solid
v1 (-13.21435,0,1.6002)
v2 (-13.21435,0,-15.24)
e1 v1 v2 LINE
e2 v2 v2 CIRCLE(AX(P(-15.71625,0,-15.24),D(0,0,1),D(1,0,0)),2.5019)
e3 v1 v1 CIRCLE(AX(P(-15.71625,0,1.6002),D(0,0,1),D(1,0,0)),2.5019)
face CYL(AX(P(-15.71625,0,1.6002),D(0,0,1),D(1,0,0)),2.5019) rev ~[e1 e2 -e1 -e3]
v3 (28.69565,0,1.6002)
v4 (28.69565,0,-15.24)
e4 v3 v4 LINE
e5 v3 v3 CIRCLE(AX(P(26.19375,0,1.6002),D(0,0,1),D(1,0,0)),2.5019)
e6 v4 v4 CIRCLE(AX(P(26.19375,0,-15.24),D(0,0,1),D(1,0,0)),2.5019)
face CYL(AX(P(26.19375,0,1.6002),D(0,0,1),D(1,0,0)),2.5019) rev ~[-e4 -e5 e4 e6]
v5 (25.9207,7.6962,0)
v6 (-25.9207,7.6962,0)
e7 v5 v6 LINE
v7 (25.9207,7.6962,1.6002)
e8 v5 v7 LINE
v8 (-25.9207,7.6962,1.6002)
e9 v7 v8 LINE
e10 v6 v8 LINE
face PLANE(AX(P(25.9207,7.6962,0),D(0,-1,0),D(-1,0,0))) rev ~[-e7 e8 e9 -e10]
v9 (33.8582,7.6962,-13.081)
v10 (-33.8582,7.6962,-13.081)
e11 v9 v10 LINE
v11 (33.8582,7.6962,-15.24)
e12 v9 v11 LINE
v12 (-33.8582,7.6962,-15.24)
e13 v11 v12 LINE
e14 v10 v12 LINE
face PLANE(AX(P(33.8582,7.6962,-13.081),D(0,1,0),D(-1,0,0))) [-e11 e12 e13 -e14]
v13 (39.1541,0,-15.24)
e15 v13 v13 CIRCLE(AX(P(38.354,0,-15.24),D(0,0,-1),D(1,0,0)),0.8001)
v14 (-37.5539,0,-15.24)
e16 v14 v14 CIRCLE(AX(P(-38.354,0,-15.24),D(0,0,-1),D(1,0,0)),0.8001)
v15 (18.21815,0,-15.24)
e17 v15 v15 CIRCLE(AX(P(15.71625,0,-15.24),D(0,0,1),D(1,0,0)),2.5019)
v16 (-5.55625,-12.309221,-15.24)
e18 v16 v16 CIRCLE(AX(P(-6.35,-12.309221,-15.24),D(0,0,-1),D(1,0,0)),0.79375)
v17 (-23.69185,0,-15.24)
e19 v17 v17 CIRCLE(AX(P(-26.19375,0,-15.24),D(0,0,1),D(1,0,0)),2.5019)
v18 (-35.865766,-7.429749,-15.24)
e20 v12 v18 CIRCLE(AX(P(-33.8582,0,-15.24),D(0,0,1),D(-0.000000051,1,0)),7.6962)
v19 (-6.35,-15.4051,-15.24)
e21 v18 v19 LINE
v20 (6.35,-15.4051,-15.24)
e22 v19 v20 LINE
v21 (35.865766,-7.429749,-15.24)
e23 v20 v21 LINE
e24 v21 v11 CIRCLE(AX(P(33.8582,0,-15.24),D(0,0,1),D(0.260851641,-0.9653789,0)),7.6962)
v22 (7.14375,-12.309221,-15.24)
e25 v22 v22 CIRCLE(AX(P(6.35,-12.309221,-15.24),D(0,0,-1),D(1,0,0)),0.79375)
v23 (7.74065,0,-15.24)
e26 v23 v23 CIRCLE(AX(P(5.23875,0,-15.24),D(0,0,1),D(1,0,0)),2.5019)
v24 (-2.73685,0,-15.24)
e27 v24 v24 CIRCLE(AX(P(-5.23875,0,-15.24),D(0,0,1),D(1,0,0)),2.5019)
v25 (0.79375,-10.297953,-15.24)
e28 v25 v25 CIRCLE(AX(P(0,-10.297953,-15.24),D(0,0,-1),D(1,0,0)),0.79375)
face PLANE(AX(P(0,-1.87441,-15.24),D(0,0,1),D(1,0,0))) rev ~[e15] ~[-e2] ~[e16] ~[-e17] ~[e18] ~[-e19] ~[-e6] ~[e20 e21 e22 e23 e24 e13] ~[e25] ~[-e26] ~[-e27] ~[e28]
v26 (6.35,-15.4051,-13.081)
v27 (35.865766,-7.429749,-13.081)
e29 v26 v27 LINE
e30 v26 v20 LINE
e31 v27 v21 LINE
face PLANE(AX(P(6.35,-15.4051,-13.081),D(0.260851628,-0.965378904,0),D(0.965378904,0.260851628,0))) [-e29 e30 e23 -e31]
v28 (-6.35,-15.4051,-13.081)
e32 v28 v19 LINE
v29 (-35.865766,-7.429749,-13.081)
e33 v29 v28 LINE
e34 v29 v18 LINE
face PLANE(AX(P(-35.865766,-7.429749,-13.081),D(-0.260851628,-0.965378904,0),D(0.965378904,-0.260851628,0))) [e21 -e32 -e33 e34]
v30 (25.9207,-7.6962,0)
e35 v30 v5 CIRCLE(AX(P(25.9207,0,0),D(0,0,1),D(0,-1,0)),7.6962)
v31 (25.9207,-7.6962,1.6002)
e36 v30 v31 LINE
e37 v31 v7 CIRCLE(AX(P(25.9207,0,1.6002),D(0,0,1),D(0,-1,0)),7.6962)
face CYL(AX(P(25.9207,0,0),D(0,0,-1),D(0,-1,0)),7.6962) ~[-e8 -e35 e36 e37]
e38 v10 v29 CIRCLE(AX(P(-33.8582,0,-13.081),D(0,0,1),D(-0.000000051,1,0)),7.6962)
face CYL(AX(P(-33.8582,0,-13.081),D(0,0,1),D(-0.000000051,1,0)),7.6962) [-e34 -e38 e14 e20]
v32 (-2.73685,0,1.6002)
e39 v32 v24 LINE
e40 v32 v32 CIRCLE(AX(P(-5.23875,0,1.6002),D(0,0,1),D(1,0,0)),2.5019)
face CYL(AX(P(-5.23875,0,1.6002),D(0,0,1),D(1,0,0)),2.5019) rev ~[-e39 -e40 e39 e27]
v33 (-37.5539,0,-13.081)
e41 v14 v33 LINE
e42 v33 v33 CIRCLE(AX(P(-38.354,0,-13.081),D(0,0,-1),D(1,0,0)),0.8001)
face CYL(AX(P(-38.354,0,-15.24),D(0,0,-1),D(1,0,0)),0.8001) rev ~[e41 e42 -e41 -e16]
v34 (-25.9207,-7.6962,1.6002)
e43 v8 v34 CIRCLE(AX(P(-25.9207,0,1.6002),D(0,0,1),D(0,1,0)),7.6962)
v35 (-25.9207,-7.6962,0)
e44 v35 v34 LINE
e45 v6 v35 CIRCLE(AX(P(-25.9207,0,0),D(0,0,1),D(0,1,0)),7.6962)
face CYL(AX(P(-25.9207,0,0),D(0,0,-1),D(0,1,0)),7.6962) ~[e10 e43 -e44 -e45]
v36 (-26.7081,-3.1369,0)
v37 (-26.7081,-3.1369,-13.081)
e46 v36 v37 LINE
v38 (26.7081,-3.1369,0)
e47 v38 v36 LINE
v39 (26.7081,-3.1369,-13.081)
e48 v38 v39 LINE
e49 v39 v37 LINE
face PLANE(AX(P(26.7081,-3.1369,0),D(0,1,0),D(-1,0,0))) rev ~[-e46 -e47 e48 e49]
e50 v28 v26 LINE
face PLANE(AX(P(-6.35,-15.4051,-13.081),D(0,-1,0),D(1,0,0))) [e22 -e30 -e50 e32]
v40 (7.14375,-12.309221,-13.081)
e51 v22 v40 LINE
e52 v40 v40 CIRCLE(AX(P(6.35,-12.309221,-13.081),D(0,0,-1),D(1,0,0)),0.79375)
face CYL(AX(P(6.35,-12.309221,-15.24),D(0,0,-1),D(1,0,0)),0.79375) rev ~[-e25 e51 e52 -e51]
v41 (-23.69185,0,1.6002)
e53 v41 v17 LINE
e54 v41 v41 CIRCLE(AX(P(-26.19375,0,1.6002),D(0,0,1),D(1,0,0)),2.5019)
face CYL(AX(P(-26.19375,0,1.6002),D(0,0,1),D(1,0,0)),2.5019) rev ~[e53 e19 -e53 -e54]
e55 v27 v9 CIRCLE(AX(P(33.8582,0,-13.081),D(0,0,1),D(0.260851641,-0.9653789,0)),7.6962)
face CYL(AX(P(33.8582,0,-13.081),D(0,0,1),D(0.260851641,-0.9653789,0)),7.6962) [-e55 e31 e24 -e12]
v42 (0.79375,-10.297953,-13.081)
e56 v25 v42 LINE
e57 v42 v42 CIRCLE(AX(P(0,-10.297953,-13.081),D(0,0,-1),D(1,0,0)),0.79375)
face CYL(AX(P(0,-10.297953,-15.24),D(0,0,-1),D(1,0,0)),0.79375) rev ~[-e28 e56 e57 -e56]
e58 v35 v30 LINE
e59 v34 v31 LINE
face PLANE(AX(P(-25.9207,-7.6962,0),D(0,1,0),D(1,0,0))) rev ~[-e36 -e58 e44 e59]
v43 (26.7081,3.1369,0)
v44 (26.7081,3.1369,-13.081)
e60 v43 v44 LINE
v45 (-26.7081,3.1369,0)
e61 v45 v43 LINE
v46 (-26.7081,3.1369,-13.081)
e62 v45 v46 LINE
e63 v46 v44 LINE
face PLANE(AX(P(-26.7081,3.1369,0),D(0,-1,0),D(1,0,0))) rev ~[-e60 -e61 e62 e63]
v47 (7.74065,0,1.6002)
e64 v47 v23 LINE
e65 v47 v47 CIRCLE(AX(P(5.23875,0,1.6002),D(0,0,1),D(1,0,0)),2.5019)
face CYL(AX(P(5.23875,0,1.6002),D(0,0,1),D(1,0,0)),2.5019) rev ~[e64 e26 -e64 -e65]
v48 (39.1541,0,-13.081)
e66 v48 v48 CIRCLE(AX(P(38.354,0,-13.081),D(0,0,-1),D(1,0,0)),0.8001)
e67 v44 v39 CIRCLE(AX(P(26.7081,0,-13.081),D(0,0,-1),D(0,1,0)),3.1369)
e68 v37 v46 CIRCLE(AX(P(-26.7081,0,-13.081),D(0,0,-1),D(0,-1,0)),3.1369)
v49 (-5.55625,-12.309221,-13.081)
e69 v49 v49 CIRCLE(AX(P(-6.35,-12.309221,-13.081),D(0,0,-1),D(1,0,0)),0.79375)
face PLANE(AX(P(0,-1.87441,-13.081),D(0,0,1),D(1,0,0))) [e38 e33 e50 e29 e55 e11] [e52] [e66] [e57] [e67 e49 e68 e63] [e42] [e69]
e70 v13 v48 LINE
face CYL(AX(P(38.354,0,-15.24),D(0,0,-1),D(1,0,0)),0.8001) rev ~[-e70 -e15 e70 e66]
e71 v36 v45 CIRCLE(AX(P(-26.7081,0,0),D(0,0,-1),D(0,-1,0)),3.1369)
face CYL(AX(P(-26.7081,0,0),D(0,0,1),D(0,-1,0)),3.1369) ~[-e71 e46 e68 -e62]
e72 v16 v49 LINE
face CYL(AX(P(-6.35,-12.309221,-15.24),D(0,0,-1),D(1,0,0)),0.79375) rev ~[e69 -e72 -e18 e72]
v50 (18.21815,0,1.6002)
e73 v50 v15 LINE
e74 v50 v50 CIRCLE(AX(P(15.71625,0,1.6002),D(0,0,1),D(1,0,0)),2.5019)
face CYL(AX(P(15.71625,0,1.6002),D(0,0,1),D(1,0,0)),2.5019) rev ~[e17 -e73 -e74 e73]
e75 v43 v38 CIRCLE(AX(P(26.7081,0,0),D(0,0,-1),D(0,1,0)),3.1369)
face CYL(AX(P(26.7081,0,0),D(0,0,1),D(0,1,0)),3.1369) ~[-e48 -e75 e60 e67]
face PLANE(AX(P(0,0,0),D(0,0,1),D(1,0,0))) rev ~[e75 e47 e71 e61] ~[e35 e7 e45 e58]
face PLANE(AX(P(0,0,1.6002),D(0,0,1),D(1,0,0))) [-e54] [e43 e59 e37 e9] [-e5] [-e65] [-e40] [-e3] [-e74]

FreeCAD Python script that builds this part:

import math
import FreeCAD as App
import Part
import Sketcher

V = App.Vector
Q = App.Units.Quantity

doc = App.newDocument("Part")
body = doc.addObject("PartDesign::Body", "Body")

# Sketch on XY plane
sketch1 = body.newObject("Sketcher::SketchObject", "Sketch")
sketch1.AttachmentSupport = (doc.getObject("XY_Plane"), [""])
sketch1.MapMode = "FlatFace"
sketch1.addGeometry(Part.ArcOfCircle(Part.Circle(V(-26, 0, 0), V(0, 0, 1), 8), math.radians(90), math.radians(270)), False)
sketch1.addGeometry(Part.LineSegment(V(-26, -8, 0), V(26, -8, 0)), False)
sketch1.addGeometry(Part.ArcOfCircle(Part.Circle(V(26, 0, 0), V(0, 0, 1), 8), math.radians(-90), math.radians(90)), False)
sketch1.addGeometry(Part.LineSegment(V(26, 8, 0), V(-26, 8, 0)), False)
sketch1.addConstraint(Sketcher.Constraint("Tangent", 0, 2, 1, 1))
sketch1.addConstraint(Sketcher.Constraint("Tangent", 1, 2, 2, 1))
sketch1.addConstraint(Sketcher.Constraint("Tangent", 2, 2, 3, 1))
sketch1.addConstraint(Sketcher.Constraint("Tangent", 3, 2, 0, 1))
sketch1.addConstraint(Sketcher.Constraint("Horizontal", 1))
sketch1.addConstraint(Sketcher.Constraint("Horizontal", 3))
sketch1.addConstraint(Sketcher.Constraint("Symmetric", 0, 3, 2, 3, -1, 1))
sketch1.addConstraint(Sketcher.Constraint("Radius", 0, Q("0.303 in")))
sketch1.addConstraint(Sketcher.Constraint("DistanceX", 1, 1, 1, 2, Q("2.041 in")))
pad1 = body.newObject("PartDesign::Pad", "Pad")
pad1.Profile = sketch1
pad1.Length = Q("0.063 in")
body2 = doc.addObject("PartDesign::Body", "Body001")

# Sketch on XY plane
sketch2 = body2.newObject("Sketcher::SketchObject", "Sketch001")
sketch2.AttachmentSupport = (doc.getObject("XY_Plane001"), [""])
sketch2.MapMode = "FlatFace"
sketch2.AttachmentOffset = App.Placement(V(0, 0, -0.515 * 25.4), App.Rotation())
sketch2.addGeometry(Part.LineSegment(V(-36, -7, 0), V(-6, -15, 0)), False)
sketch2.addGeometry(Part.LineSegment(V(-6, -15, 0), V(6, -15, 0)), False)
sketch2.addGeometry(Part.LineSegment(V(6, -15, 0), V(36, -7, 0)), False)
sketch2.addGeometry(Part.ArcOfCircle(Part.Circle(V(34, 0, 0), V(0, 0, 1), 8), math.radians(-75), math.radians(90)), False)
sketch2.addGeometry(Part.LineSegment(V(34, 8, 0), V(-34, 8, 0)), False)
sketch2.addGeometry(Part.ArcOfCircle(Part.Circle(V(-34, 0, 0), V(0, 0, 1), 8), math.radians(90), math.radians(255)), False)
sketch2.addConstraint(Sketcher.Constraint("Coincident", 0, 2, 1, 1))
sketch2.addConstraint(Sketcher.Constraint("Coincident", 1, 2, 2, 1))
sketch2.addConstraint(Sketcher.Constraint("Tangent", 2, 2, 3, 1))
sketch2.addConstraint(Sketcher.Constraint("Tangent", 3, 2, 4, 1))
sketch2.addConstraint(Sketcher.Constraint("Tangent", 4, 2, 5, 1))
sketch2.addConstraint(Sketcher.Constraint("Tangent", 5, 2, 0, 1))
sketch2.addConstraint(Sketcher.Constraint("Horizontal", 1))
sketch2.addConstraint(Sketcher.Constraint("Horizontal", 4))
sketch2.addConstraint(Sketcher.Constraint("Equal", 3, 5))
sketch2.addConstraint(Sketcher.Constraint("Symmetric", 3, 3, 5, 3, -1, 1))
sketch2.addConstraint(Sketcher.Constraint("Horizontal", 2, 2, 5, 2))
sketch2.addConstraint(Sketcher.Constraint("DistanceX", 1, 1, 1, 2, Q("0.5 in")))
sketch2.addConstraint(Sketcher.Constraint("Radius", 3, Q("0.303 in")))
sketch2.addConstraint(Sketcher.Constraint("DistanceX", 4, 2, 4, 1, Q("2.666 in")))
sketch2.addConstraint(Sketcher.Constraint("DistanceY", 0, 2, -1, 1, Q("0.6065 in")))
pad2 = body2.newObject("PartDesign::Pad", "Pad001")
pad2.Profile = sketch2
pad2.Length = Q("0.085 in")
pad2.Reversed = True
body.AllowCompound = True
doc.recompute()

boolean = body.newObject("PartDesign::Boolean", "Boolean")
boolean.Type = "Fuse"
boolean.addObjects([body2])

# Sketch on XY plane
sketch3 = body.newObject("Sketcher::SketchObject", "Sketch002")
sketch3.AttachmentSupport = (doc.getObject("XY_Plane"), [""])
sketch3.MapMode = "FlatFace"
sketch3.addGeometry(Part.ArcOfCircle(Part.Circle(V(26.7, 0, 0), V(0, 0, 1), 3.1), math.radians(-90), math.radians(90)), False)
sketch3.addGeometry(Part.LineSegment(V(26.7, -3.1, 0), V(-26.7, -3.1, 0)), False)
sketch3.addGeometry(Part.ArcOfCircle(Part.Circle(V(-26.7, 0, 0), V(0, 0, 1), 3.1), math.radians(90), math.radians(270)), False)
sketch3.addGeometry(Part.LineSegment(V(-26.7, 3.1, 0), V(26.7, 3.1, 0)), False)
sketch3.addConstraint(Sketcher.Constraint("Tangent", 0, 1, 1, 1))
sketch3.addConstraint(Sketcher.Constraint("Tangent", 1, 2, 2, 2))
sketch3.addConstraint(Sketcher.Constraint("Tangent", 2, 1, 3, 1))
sketch3.addConstraint(Sketcher.Constraint("Tangent", 3, 2, 0, 2))
sketch3.addConstraint(Sketcher.Constraint("Horizontal", 1))
sketch3.addConstraint(Sketcher.Constraint("Horizontal", 3))
sketch3.addConstraint(Sketcher.Constraint("Symmetric", 0, 3, 2, 3, -1, 1))
sketch3.addConstraint(Sketcher.Constraint("Radius", 0, Q("0.1235 in")))
sketch3.addConstraint(Sketcher.Constraint("DistanceX", 1, 2, 1, 1, Q("2.103 in")))
pad3 = body.newObject("PartDesign::Pad", "Pad002")
pad3.Profile = sketch3
pad3.Type = "UpToLast"
pad3.Reversed = True

# Sketch on XY plane
sketch4 = body.newObject("Sketcher::SketchObject", "Sketch003")
sketch4.AttachmentSupport = (doc.getObject("XY_Plane"), [""])
sketch4.MapMode = "FlatFace"
sketch4.AttachmentOffset = App.Placement(V(0, 0, 0.063 * 25.4), App.Rotation())
sketch4.addGeometry(Part.Circle(V(-5.2, 0, 0), V(0, 0, 1), 2.5), False)
sketch4.addGeometry(Part.Circle(V(-15.7, 0, 0), V(0, 0, 1), 2.5), False)
sketch4.addGeometry(Part.Circle(V(-26.2, 0, 0), V(0, 0, 1), 2.5), False)
sketch4.addGeometry(Part.Circle(V(5.2, 0, 0), V(0, 0, 1), 2.5), False)
sketch4.addGeometry(Part.Circle(V(15.7, 0, 0), V(0, 0, 1), 2.5), False)
sketch4.addGeometry(Part.Circle(V(26.2, 0, 0), V(0, 0, 1), 2.5), False)
sketch4.addConstraint(Sketcher.Constraint("Equal", 0, 1))
sketch4.addConstraint(Sketcher.Constraint("Equal", 1, 2))
sketch4.addConstraint(Sketcher.Constraint("Equal", 2, 3))
sketch4.addConstraint(Sketcher.Constraint("Equal", 3, 4))
sketch4.addConstraint(Sketcher.Constraint("Equal", 4, 5))
sketch4.addConstraint(Sketcher.Constraint("Symmetric", 0, 3, 3, 3, -1, 1))
sketch4.addConstraint(Sketcher.Constraint("Symmetric", 1, 3, 4, 3, -1, 1))
sketch4.addConstraint(Sketcher.Constraint("Symmetric", 2, 3, 5, 3, -1, 1))
sketch4.addConstraint(Sketcher.Constraint("PointOnObject", 0, 3, -1))
sketch4.addConstraint(Sketcher.Constraint("PointOnObject", 1, 3, -1))
sketch4.addConstraint(Sketcher.Constraint("PointOnObject", 2, 3, -1))
sketch4.addConstraint(Sketcher.Constraint("Diameter", 0, Q("0.197 in")))
sketch4.addConstraint(Sketcher.Constraint("DistanceX", 2, 3, 4, 3, Q("1.65 in")))
sketch4.addConstraint(Sketcher.Constraint("DistanceX", 2, 3, -1, 1, Q("1.03125 in")))
sketch4.addConstraint(Sketcher.Constraint("DistanceX", 2, 3, 0, 3, Q("0.825 in")))
pocket1 = body.newObject("PartDesign::Pocket", "Pocket")
pocket1.Profile = sketch4
pocket1.Type = "ThroughAll"

# Sketch on XY plane
sketch5 = body.newObject("Sketcher::SketchObject", "Sketch004")
sketch5.AttachmentSupport = (doc.getObject("XY_Plane"), [""])
sketch5.MapMode = "FlatFace"
sketch5.AttachmentOffset = App.Placement(V(0, 0, -0.6 * 25.4), App.Rotation())
sketch5.addGeometry(Part.Circle(V(38.4, 0, 0), V(0, 0, 1), 0.8), False)
sketch5.addGeometry(Part.Circle(V(-38.4, 0, 0), V(0, 0, 1), 0.8), False)
sketch5.addGeometry(Part.Circle(V(-6.3, -12.3, 0), V(0, 0, 1), 0.8), False)
sketch5.addGeometry(Part.Circle(V(0, -10.3, 0), V(0, 0, 1), 0.8), False)
sketch5.addGeometry(Part.Circle(V(6.3, -12.3, 0), V(0, 0, 1), 0.8), False)
sketch5.addConstraint(Sketcher.Constraint("Equal", 0, 1))
sketch5.addConstraint(Sketcher.Constraint("Equal", 2, 3))
sketch5.addConstraint(Sketcher.Constraint("Equal", 3, 4))
sketch5.addConstraint(Sketcher.Constraint("Symmetric", 0, 3, 1, 3, -1, 1))
sketch5.addConstraint(Sketcher.Constraint("Symmetric", 2, 3, 4, 3, -2))
sketch5.addConstraint(Sketcher.Constraint("PointOnObject", 0, 3, -1))
sketch5.addConstraint(Sketcher.Constraint("PointOnObject", 3, 3, -2))
sketch5.addConstraint(Sketcher.Constraint("Diameter", 0, Q("0.063 in")))
sketch5.addConstraint(Sketcher.Constraint("Diameter", 2, Q("0.0625 in")))
sketch5.addConstraint(Sketcher.Constraint("DistanceX", 2, 3, 4, 3, Q("0.5 in")))
sketch5.addConstraint(Sketcher.Constraint("DistanceX", -1, 1, 0, 3, Q("1.51 in")))
sketch5.addConstraint(Sketcher.Constraint("DistanceY", 2, 3, -1, 1, Q("12.309221 mm")))
sketch5.addConstraint(Sketcher.Constraint("DistanceY", 2, 3, 3, 3, Q("2.011268 mm")))
pocket2 = body.newObject("PartDesign::Pocket", "Pocket001")
pocket2.Profile = sketch5
pocket2.Type = "ThroughAll"
pocket2.Reversed = True

doc.recompute()
